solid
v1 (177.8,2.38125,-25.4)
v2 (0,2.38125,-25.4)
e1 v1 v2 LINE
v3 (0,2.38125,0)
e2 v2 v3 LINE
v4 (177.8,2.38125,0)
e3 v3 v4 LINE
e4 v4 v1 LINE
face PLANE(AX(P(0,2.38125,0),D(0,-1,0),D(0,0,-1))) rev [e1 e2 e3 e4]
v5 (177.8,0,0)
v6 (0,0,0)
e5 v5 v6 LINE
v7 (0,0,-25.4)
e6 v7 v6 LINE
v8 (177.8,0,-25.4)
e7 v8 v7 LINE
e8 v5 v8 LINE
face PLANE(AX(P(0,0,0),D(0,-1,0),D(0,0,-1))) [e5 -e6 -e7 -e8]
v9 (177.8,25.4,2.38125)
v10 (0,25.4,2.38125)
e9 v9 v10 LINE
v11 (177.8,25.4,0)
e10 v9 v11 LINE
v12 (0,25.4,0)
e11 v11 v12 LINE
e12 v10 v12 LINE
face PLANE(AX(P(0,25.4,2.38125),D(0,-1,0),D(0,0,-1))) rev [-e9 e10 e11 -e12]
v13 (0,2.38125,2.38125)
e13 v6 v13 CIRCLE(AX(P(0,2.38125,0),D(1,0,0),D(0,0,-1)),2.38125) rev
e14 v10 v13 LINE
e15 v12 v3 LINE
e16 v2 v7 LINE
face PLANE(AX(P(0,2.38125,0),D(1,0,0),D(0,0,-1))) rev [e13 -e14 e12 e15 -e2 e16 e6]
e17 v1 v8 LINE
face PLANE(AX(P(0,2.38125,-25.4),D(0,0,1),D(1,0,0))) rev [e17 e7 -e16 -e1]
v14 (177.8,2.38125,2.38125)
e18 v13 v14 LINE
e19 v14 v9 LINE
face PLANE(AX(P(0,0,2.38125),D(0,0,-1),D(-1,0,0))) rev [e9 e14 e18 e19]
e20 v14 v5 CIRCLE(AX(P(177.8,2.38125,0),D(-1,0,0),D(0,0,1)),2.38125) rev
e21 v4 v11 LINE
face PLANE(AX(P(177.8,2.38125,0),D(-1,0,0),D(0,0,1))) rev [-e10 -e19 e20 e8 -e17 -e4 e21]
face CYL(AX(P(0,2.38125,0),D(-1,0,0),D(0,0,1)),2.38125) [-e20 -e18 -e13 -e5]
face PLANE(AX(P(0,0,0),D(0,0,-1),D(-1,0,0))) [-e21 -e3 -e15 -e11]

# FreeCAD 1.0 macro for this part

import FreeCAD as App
import Part
import Sketcher
from FreeCAD import Vector
Q = App.Units.Quantity


def edges_at(feature, points):
    """Names of the edges that pass closest to the given points."""
    edges = feature.Shape.Edges
    near = lambda p: min(range(len(edges)), key=lambda i: edges[i].distToShape(Part.Vertex(*p))[0])
    return sorted({f"Edge{near(p) + 1}" for p in points})

doc = App.newDocument("Part")
params = doc.addObject("Spreadsheet::Sheet", "Params")
for row, (alias, value) in enumerate([
    ("sketch1_width", "7 in"),
    ("sketch1_height", "1 in"),
    ("pad1_length", "0.09375 in"),
    ("sketch2_width", "7 in"),
    ("sketch2_height", "1 in"),
    ("pad2_length", "0.09375 in"),
    ("fillet_radius", "0.09375 in"),
], start=1):
    params.set(f"A{row}", alias)
    params.set(f"B{row}", "=" + value)
    params.setAlias(f"B{row}", alias)

body = doc.addObject("PartDesign::Body", "Body")

# Sketch on XZ plane
sketch1 = body.newObject("Sketcher::SketchObject", "Sketch")
sketch1.AttachmentSupport = (doc.getObject("XZ_Plane"), [""])
sketch1.MapMode = "FlatFace"
sketch1.addGeometry(Part.LineSegment(Vector(0, -25, 0), Vector(0, 0, 0)), False)
sketch1.addGeometry(Part.LineSegment(Vector(0, 0, 0), Vector(178, 0, 0)), False)
sketch1.addGeometry(Part.LineSegment(Vector(178, 0, 0), Vector(178, -25, 0)), False)
sketch1.addGeometry(Part.LineSegment(Vector(178, -25, 0), Vector(0, -25, 0)), False)
sketch1.addConstraint(Sketcher.Constraint("Coincident", 0, 2, 1, 1))
sketch1.addConstraint(Sketcher.Constraint("Coincident", 1, 2, 2, 1))
sketch1.addConstraint(Sketcher.Constraint("Coincident", 2, 2, 3, 1))
sketch1.addConstraint(Sketcher.Constraint("Coincident", 3, 2, 0, 1))
sketch1.addConstraint(Sketcher.Constraint("Vertical", 0))
sketch1.addConstraint(Sketcher.Constraint("Horizontal", 1))
sketch1.addConstraint(Sketcher.Constraint("Vertical", 2))
sketch1.addConstraint(Sketcher.Constraint("Horizontal", 3))
sketch1.addConstraint(Sketcher.Constraint("Coincident", 0, 2, -1, 1))
sketch1.addConstraint(Sketcher.Constraint("DistanceX", 1, 1, 1, 2, Q("7 in")))
sketch1.addConstraint(Sketcher.Constraint("DistanceY", 0, 1, 0, 2, Q("1 in")))
sketch1.setExpression("Constraints[9]", "Params.sketch1_width")
sketch1.setExpression("Constraints[10]", "Params.sketch1_height")
pad1 = body.newObject("PartDesign::Pad", "Pad")
pad1.Profile = sketch1
pad1.setExpression("Length", "Params.pad1_length")
pad1.Reversed = True

# Sketch on XY plane
sketch2 = body.newObject("Sketcher::SketchObject", "Sketch001")
sketch2.AttachmentSupport = (doc.getObject("XY_Plane"), [""])
sketch2.MapMode = "FlatFace"
sketch2.addGeometry(Part.LineSegment(Vector(0, 25, 0), Vector(0, 0, 0)), False)
sketch2.addGeometry(Part.LineSegment(Vector(0, 0, 0), Vector(178, 0, 0)), False)
sketch2.addGeometry(Part.LineSegment(Vector(178, 0, 0), Vector(178, 25, 0)), False)
sketch2.addGeometry(Part.LineSegment(Vector(178, 25, 0), Vector(0, 25, 0)), False)
sketch2.addConstraint(Sketcher.Constraint("Coincident", 0, 2, 1, 1))
sketch2.addConstraint(Sketcher.Constraint("Coincident", 1, 2, 2, 1))
sketch2.addConstraint(Sketcher.Constraint("Coincident", 2, 2, 3, 1))
sketch2.addConstraint(Sketcher.Constraint("Coincident", 3, 2, 0, 1))
sketch2.addConstraint(Sketcher.Constraint("Vertical", 0))
sketch2.addConstraint(Sketcher.Constraint("Horizontal", 1))
sketch2.addConstraint(Sketcher.Constraint("Vertical", 2))
sketch2.addConstraint(Sketcher.Constraint("Horizontal", 3))
sketch2.addConstraint(Sketcher.Constraint("Coincident", 0, 2, -1, 1))
sketch2.addConstraint(Sketcher.Constraint("DistanceX", 1, 1, 1, 2, Q("7 in")))
sketch2.addConstraint(Sketcher.Constraint("DistanceY", 0, 2, 0, 1, Q("1 in")))
sketch2.setExpression("Constraints[9]", "Params.sketch2_width")
sketch2.setExpression("Constraints[10]", "Params.sketch2_height")
pad2 = body.newObject("PartDesign::Pad", "Pad001")
pad2.Profile = sketch2
pad2.setExpression("Length", "Params.pad2_length")
doc.recompute()

fillet = body.newObject("PartDesign::Fillet", "Fillet")
fillet.Base = (pad2, edges_at(pad2, [(88.9, 0, 2.381)]))
fillet.setExpression("Radius", "Params.fillet_radius")

doc.recompute()
